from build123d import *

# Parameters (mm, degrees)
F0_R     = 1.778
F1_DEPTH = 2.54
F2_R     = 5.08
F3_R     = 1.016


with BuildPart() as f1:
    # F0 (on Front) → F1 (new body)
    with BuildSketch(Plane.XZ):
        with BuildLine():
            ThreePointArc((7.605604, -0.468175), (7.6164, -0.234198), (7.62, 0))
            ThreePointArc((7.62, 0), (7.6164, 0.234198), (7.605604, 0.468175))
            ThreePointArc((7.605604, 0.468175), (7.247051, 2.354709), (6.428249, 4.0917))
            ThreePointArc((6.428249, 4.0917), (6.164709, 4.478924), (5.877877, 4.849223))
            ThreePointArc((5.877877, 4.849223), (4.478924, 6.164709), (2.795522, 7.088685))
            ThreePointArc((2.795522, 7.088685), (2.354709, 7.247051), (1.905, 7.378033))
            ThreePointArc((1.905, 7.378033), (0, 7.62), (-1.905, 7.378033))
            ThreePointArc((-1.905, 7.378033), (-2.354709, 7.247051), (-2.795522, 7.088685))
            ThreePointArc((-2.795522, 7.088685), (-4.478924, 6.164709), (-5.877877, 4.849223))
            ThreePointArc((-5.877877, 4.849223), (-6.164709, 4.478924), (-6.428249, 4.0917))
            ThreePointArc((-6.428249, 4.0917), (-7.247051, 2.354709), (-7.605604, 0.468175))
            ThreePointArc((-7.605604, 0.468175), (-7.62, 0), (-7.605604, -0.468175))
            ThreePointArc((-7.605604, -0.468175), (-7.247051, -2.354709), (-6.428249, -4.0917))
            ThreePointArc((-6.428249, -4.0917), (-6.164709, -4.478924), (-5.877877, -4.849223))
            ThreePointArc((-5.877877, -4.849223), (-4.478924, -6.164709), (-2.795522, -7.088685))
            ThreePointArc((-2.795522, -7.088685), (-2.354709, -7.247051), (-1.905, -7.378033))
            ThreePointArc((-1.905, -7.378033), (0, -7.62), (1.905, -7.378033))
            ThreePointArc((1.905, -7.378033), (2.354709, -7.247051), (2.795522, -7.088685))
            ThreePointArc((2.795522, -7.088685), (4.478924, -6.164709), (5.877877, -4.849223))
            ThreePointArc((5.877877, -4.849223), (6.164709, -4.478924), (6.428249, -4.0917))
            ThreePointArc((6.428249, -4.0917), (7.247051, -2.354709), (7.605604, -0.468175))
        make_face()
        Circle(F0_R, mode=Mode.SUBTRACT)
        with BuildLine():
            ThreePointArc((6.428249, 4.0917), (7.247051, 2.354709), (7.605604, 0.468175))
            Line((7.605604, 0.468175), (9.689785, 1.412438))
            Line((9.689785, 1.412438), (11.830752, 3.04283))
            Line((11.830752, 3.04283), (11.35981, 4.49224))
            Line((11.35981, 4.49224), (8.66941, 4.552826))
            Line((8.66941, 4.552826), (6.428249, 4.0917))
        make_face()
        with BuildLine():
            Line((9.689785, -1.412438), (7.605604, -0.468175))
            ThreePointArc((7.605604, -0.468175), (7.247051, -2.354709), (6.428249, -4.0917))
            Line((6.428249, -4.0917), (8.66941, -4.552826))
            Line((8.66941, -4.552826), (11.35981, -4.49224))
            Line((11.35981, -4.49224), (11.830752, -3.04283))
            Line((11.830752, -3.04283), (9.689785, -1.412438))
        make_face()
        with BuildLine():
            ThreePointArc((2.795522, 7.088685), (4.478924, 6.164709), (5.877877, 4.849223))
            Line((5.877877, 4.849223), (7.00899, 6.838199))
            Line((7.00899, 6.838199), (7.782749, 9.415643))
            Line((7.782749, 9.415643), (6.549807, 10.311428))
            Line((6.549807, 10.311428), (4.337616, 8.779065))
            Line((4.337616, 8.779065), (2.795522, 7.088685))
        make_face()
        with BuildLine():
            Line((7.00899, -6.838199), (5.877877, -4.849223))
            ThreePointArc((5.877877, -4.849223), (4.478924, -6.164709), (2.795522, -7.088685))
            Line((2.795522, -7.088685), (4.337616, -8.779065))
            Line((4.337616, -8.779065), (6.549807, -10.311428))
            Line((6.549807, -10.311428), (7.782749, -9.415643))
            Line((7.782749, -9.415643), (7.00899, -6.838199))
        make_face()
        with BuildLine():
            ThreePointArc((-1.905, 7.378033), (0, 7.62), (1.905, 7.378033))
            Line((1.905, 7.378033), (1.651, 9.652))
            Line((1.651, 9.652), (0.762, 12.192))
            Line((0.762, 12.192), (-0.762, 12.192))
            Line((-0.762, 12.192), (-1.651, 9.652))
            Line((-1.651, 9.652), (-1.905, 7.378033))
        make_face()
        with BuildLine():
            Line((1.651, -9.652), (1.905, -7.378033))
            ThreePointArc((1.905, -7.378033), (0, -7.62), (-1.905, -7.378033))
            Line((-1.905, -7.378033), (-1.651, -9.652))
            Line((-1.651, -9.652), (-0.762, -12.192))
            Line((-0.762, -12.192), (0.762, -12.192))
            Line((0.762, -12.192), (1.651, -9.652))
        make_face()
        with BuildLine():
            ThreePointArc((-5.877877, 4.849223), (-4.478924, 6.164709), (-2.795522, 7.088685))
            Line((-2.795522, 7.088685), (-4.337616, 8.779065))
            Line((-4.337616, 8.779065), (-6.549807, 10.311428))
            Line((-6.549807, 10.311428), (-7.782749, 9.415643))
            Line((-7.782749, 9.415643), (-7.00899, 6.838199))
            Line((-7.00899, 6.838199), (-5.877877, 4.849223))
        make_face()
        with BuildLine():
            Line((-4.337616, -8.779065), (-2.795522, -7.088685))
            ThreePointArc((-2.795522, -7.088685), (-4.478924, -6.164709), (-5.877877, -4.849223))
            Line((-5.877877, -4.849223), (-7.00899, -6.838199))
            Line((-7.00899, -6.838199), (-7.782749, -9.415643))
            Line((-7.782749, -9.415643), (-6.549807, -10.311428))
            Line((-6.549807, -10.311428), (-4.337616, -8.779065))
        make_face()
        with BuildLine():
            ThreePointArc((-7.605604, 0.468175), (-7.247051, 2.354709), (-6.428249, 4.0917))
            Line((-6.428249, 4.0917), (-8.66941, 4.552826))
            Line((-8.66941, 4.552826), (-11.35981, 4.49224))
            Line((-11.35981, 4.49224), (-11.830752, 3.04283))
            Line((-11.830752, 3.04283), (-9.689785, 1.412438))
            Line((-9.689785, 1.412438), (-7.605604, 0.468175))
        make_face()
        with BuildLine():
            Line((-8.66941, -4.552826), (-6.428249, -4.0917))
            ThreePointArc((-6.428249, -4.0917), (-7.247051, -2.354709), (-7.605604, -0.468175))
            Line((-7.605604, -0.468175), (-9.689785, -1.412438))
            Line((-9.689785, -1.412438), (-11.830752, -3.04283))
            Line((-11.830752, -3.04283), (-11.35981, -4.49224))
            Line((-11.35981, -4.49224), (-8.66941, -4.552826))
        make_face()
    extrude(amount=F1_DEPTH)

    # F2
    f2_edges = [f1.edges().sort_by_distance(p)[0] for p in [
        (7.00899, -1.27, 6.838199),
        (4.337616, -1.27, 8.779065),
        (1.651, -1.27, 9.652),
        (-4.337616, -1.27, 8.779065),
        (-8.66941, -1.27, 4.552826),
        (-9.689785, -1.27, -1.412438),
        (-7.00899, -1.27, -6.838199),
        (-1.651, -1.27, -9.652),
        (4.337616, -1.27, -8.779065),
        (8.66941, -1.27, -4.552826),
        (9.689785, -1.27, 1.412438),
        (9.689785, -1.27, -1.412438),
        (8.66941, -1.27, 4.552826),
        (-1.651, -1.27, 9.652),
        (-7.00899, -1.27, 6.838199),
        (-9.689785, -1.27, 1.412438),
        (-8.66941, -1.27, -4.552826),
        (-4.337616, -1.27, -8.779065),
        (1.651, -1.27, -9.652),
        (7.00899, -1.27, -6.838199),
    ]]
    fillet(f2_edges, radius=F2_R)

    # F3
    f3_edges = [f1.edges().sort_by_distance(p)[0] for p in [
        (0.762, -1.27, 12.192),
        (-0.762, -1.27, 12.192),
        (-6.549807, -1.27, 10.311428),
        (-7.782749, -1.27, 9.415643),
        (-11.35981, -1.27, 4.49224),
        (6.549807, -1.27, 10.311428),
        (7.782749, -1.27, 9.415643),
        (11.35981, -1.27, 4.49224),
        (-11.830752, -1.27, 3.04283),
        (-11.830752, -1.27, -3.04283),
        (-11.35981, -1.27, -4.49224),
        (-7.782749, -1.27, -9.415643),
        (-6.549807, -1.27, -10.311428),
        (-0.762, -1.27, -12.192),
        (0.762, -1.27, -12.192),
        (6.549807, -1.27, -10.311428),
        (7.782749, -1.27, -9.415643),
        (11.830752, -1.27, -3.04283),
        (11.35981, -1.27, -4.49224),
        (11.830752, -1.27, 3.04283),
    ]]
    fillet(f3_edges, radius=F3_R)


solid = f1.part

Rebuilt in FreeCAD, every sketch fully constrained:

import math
import FreeCAD as App
import Part
import Sketcher

V = App.Vector
Q = App.Units.Quantity


def edges_at(feature, points):
    """Names of the edges that pass closest to the given points."""
    edges = feature.Shape.Edges
    near = lambda p: min(range(len(edges)), key=lambda i: edges[i].distToShape(Part.Vertex(*p))[0])
    return sorted({f"Edge{near(p) + 1}" for p in points})

doc = App.newDocument("Part")
body = doc.addObject("PartDesign::Body", "Body")

# Sketch on XZ plane
sketch1 = body.newObject("Sketcher::SketchObject", "Sketch")
sketch1.AttachmentSupport = (doc.getObject("XZ_Plane"), [""])
sketch1.MapMode = "FlatFace"
sketch1.addGeometry([
    Part.ArcOfCircle(Part.Circle(V(-0.000327, 0.00001, 0), V(0, 0, 1), 7.620327), math.radians(-3.522412), math.radians(-0.000075)),  # 0
    Part.ArcOfCircle(Part.Circle(V(-0.000327, -0.00001, 0), V(0, 0, 1), 7.620327), math.radians(0.000075), math.radians(3.522412)),  # 1
    Part.LineSegment(V(7.605604, 0.468175, 0), V(9.689785, 1.412438, 0)),  # 2
    Part.LineSegment(V(9.689785, 1.412438, 0), V(11.830752, 3.04283, 0)),  # 3
    Part.LineSegment(V(11.830752, 3.04283, 0), V(11.35981, 4.49224, 0)),  # 4
    Part.LineSegment(V(11.35981, 4.49224, 0), V(8.66941, 4.552826, 0)),  # 5
    Part.LineSegment(V(8.66941, 4.552826, 0), V(6.428249, 4.0917, 0)),  # 6
    Part.ArcOfCircle(Part.Circle(V(-0.000021, -0.00001, 0), V(0, 0, 1), 7.620023), math.radians(32.477491), math.radians(39.522442)),  # 7
    Part.LineSegment(V(5.877877, 4.849223, 0), V(7.00899, 6.838199, 0)),  # 8
    Part.LineSegment(V(7.00899, 6.838199, 0), V(7.782749, 9.415643, 0)),  # 9
    Part.LineSegment(V(7.782749, 9.415643, 0), V(6.549807, 10.311428, 0)),  # 10
    Part.LineSegment(V(6.549807, 10.311428, 0), V(4.337616, 8.779065, 0)),  # 11
    Part.LineSegment(V(4.337616, 8.779065, 0), V(2.795522, 7.088685, 0)),  # 12
    Part.ArcOfCircle(Part.Circle(V(0.000061, 0.000183, 0), V(0, 0, 1), 7.619807), math.radians(68.47743), math.radians(75.522586)),  # 13
    Part.LineSegment(V(1.905, 7.378033, 0), V(1.651, 9.652, 0)),  # 14
    Part.LineSegment(V(1.651, 9.652, 0), V(0.762, 12.192, 0)),  # 15
    Part.LineSegment(V(0.762, 12.192, 0), V(-0.762, 12.192, 0)),  # 16
    Part.LineSegment(V(-0.762, 12.192, 0), V(-1.651, 9.652, 0)),  # 17
    Part.LineSegment(V(-1.651, 9.652, 0), V(-1.905, 7.378033, 0)),  # 18
    Part.ArcOfCircle(Part.Circle(V(-0.000061, 0.000183, 0), V(0, 0, 1), 7.619807), math.radians(104.477414), math.radians(111.52257)),  # 19
    Part.LineSegment(V(-2.795522, 7.088685, 0), V(-4.337616, 8.779065, 0)),  # 20
    Part.LineSegment(V(-4.337616, 8.779065, 0), V(-6.549807, 10.311428, 0)),  # 21
    Part.LineSegment(V(-6.549807, 10.311428, 0), V(-7.782749, 9.415643, 0)),  # 22
    Part.LineSegment(V(-7.782749, 9.415643, 0), V(-7.00899, 6.838199, 0)),  # 23
    Part.LineSegment(V(-7.00899, 6.838199, 0), V(-5.877877, 4.849223, 0)),  # 24
    Part.ArcOfCircle(Part.Circle(V(0.000021, -0.00001, 0), V(0, 0, 1), 7.620023), math.radians(140.477558), math.radians(147.522509)),  # 25
    Part.LineSegment(V(-6.428249, 4.0917, 0), V(-8.66941, 4.552826, 0)),  # 26
    Part.LineSegment(V(-8.66941, 4.552826, 0), V(-11.35981, 4.49224, 0)),  # 27
    Part.LineSegment(V(-11.35981, 4.49224, 0), V(-11.830752, 3.04283, 0)),  # 28
    Part.LineSegment(V(-11.830752, 3.04283, 0), V(-9.689785, 1.412438, 0)),  # 29
    Part.LineSegment(V(-9.689785, 1.412438, 0), V(-7.605604, 0.468175, 0)),  # 30
    Part.ArcOfCircle(Part.Circle(V(0.000001, 0, 0), V(0, 0, 1), 7.620001), math.radians(176.477513), math.radians(183.522487)),  # 31
    Part.LineSegment(V(-7.605604, -0.468175, 0), V(-9.689785, -1.412438, 0)),  # 32
    Part.LineSegment(V(-9.689785, -1.412438, 0), V(-11.830752, -3.04283, 0)),  # 33
    Part.LineSegment(V(-11.830752, -3.04283, 0), V(-11.35981, -4.49224, 0)),  # 34
    Part.LineSegment(V(-11.35981, -4.49224, 0), V(-8.66941, -4.552826, 0)),  # 35
    Part.LineSegment(V(-8.66941, -4.552826, 0), V(-6.428249, -4.0917, 0)),  # 36
    Part.ArcOfCircle(Part.Circle(V(0.000021, 0.00001, 0), V(0, 0, 1), 7.620023), math.radians(-147.522509), math.radians(-140.477558)),  # 37
    Part.LineSegment(V(-5.877877, -4.849223, 0), V(-7.00899, -6.838199, 0)),  # 38
    Part.LineSegment(V(-7.00899, -6.838199, 0), V(-7.782749, -9.415643, 0)),  # 39
    Part.LineSegment(V(-7.782749, -9.415643, 0), V(-6.549807, -10.311428, 0)),  # 40
    Part.LineSegment(V(-6.549807, -10.311428, 0), V(-4.337616, -8.779065, 0)),  # 41
    Part.LineSegment(V(-4.337616, -8.779065, 0), V(-2.795522, -7.088685, 0)),  # 42
    Part.ArcOfCircle(Part.Circle(V(-0.000061, -0.000183, 0), V(0, 0, 1), 7.619807), math.radians(-111.52257), math.radians(-104.477414)),  # 43
    Part.LineSegment(V(-1.905, -7.378033, 0), V(-1.651, -9.652, 0)),  # 44
    Part.LineSegment(V(-1.651, -9.652, 0), V(-0.762, -12.192, 0)),  # 45
    Part.LineSegment(V(-0.762, -12.192, 0), V(0.762, -12.192, 0)),  # 46
    Part.LineSegment(V(0.762, -12.192, 0), V(1.651, -9.652, 0)),  # 47
    Part.LineSegment(V(1.651, -9.652, 0), V(1.905, -7.378033, 0)),  # 48
    Part.ArcOfCircle(Part.Circle(V(0.000061, -0.000183, 0), V(0, 0, 1), 7.619807), math.radians(-75.522586), math.radians(-68.47743)),  # 49
    Part.LineSegment(V(2.795522, -7.088685, 0), V(4.337616, -8.779065, 0)),  # 50
    Part.LineSegment(V(4.337616, -8.779065, 0), V(6.549807, -10.311428, 0)),  # 51
    Part.LineSegment(V(6.549807, -10.311428, 0), V(7.782749, -9.415643, 0)),  # 52
    Part.LineSegment(V(7.782749, -9.415643, 0), V(7.00899, -6.838199, 0)),  # 53
    Part.LineSegment(V(7.00899, -6.838199, 0), V(5.877877, -4.849223, 0)),  # 54
    Part.ArcOfCircle(Part.Circle(V(-0.000021, 0.00001, 0), V(0, 0, 1), 7.620023), math.radians(-39.522442), math.radians(-32.477491)),  # 55
    Part.LineSegment(V(6.428249, -4.0917, 0), V(8.66941, -4.552826, 0)),  # 56
    Part.LineSegment(V(8.66941, -4.552826, 0), V(11.35981, -4.49224, 0)),  # 57
    Part.LineSegment(V(11.35981, -4.49224, 0), V(11.830752, -3.04283, 0)),  # 58
    Part.LineSegment(V(11.830752, -3.04283, 0), V(9.689785, -1.412438, 0)),  # 59
    Part.LineSegment(V(9.689785, -1.412438, 0), V(7.605604, -0.468175, 0)),  # 60
    Part.Circle(V(0, 0, 0), V(0, 0, 1), 1.778),  # 61
], False)
sketch1.addConstraint([
    Sketcher.Constraint("Coincident", 0, 2, 1, 1),
    Sketcher.Constraint("Coincident", 1, 2, 2, 1),
    Sketcher.Constraint("Coincident", 2, 2, 3, 1),
    Sketcher.Constraint("Coincident", 3, 2, 4, 1),
    Sketcher.Constraint("Coincident", 4, 2, 5, 1),
    Sketcher.Constraint("Coincident", 5, 2, 6, 1),
    Sketcher.Constraint("Coincident", 6, 2, 7, 1),
    Sketcher.Constraint("Coincident", 7, 2, 8, 1),
    Sketcher.Constraint("Coincident", 8, 2, 9, 1),
    Sketcher.Constraint("Coincident", 9, 2, 10, 1),
    Sketcher.Constraint("Coincident", 10, 2, 11, 1),
    Sketcher.Constraint("Coincident", 11, 2, 12, 1),
    Sketcher.Constraint("Coincident", 12, 2, 13, 1),
    Sketcher.Constraint("Coincident", 13, 2, 14, 1),
    Sketcher.Constraint("Coincident", 14, 2, 15, 1),
    Sketcher.Constraint("Coincident", 15, 2, 16, 1),
    Sketcher.Constraint("Coincident", 16, 2, 17, 1),
    Sketcher.Constraint("Coincident", 17, 2, 18, 1),
    Sketcher.Constraint("Coincident", 18, 2, 19, 1),
    Sketcher.Constraint("Coincident", 19, 2, 20, 1),
    Sketcher.Constraint("Coincident", 20, 2, 21, 1),
    Sketcher.Constraint("Coincident", 21, 2, 22, 1),
    Sketcher.Constraint("Coincident", 22, 2, 23, 1),
    Sketcher.Constraint("Coincident", 23, 2, 24, 1),
    Sketcher.Constraint("Coincident", 24, 2, 25, 1),
    Sketcher.Constraint("Coincident", 25, 2, 26, 1),
    Sketcher.Constraint("Coincident", 26, 2, 27, 1),
    Sketcher.Constraint("Coincident", 27, 2, 28, 1),
    Sketcher.Constraint("Coincident", 28, 2, 29, 1),
    Sketcher.Constraint("Coincident", 29, 2, 30, 1),
    Sketcher.Constraint("Coincident", 30, 2, 31, 1),
    Sketcher.Constraint("Coincident", 31, 2, 32, 1),
    Sketcher.Constraint("Coincident", 32, 2, 33, 1),
    Sketcher.Constraint("Coincident", 33, 2, 34, 1),
    Sketcher.Constraint("Coincident", 34, 2, 35, 1),
    Sketcher.Constraint("Coincident", 35, 2, 36, 1),
    Sketcher.Constraint("Coincident", 36, 2, 37, 1),
    Sketcher.Constraint("Coincident", 37, 2, 38, 1),
    Sketcher.Constraint("Coincident", 38, 2, 39, 1),
    Sketcher.Constraint("Coincident", 39, 2, 40, 1),
    Sketcher.Constraint("Coincident", 40, 2, 41, 1),
    Sketcher.Constraint("Coincident", 41, 2, 42, 1),
    Sketcher.Constraint("Coincident", 42, 2, 43, 1),
    Sketcher.Constraint("Coincident", 43, 2, 44, 1),
    Sketcher.Constraint("Coincident", 44, 2, 45, 1),
    Sketcher.Constraint("Coincident", 45, 2, 46, 1),
    Sketcher.Constraint("Coincident", 46, 2, 47, 1),
    Sketcher.Constraint("Coincident", 47, 2, 48, 1),
    Sketcher.Constraint("Coincident", 48, 2, 49, 1),
    Sketcher.Constraint("Coincident", 49, 2, 50, 1),
    Sketcher.Constraint("Coincident", 50, 2, 51, 1),
    Sketcher.Constraint("Coincident", 51, 2, 52, 1),
    Sketcher.Constraint("Coincident", 52, 2, 53, 1),
    Sketcher.Constraint("Coincident", 53, 2, 54, 1),
    Sketcher.Constraint("Coincident", 54, 2, 55, 1),
    Sketcher.Constraint("Coincident", 55, 2, 56, 1),
    Sketcher.Constraint("Coincident", 56, 2, 57, 1),
    Sketcher.Constraint("Coincident", 57, 2, 58, 1),
    Sketcher.Constraint("Coincident", 58, 2, 59, 1),
    Sketcher.Constraint("Coincident", 59, 2, 60, 1),
    Sketcher.Constraint("Coincident", 60, 2, 0, 1),
    Sketcher.Constraint("Horizontal", 16),
    Sketcher.Constraint("Horizontal", 46),
    Sketcher.Constraint("Coincident", 31, 3, -1, 1),
    Sketcher.Constraint("Coincident", 61, 3, -1, 1),
    Sketcher.Constraint("Equal", 0, 1),
    Sketcher.Constraint("Equal", 13, 19),
    Sketcher.Constraint("Equal", 7, 25),
    Sketcher.Constraint("Equal", 25, 37),
    Sketcher.Constraint("Equal", 19, 43),
    Sketcher.Constraint("Equal", 43, 49),
    Sketcher.Constraint("Equal", 37, 55),
    Sketcher.Constraint("Symmetric", 7, 3, 37, 3, -1, 1),
    Sketcher.Constraint("Symmetric", 13, 3, 43, 3, -1, 1),
    Sketcher.Constraint("Symmetric", 19, 3, 49, 3, -1, 1),
    Sketcher.Constraint("Symmetric", 25, 3, 55, 3, -1, 1),
    Sketcher.Constraint("Symmetric", 1, 2, 31, 2, -1, 1),
    Sketcher.Constraint("Symmetric", 2, 2, 32, 2, -1, 1),
    Sketcher.Constraint("Symmetric", 3, 2, 33, 2, -1, 1),
    Sketcher.Constraint("Symmetric", 4, 2, 34, 2, -1, 1),
    Sketcher.Constraint("Symmetric", 5, 2, 35, 2, -1, 1),
    Sketcher.Constraint("Symmetric", 8, 2, 38, 2, -1, 1),
    Sketcher.Constraint("Symmetric", 9, 2, 39, 2, -1, 1),
    Sketcher.Constraint("Symmetric", 10, 2, 40, 2, -1, 1),
    Sketcher.Constraint("Symmetric", 11, 2, 41, 2, -1, 1),
    Sketcher.Constraint("Symmetric", 14, 2, 44, 2, -1, 1),
    Sketcher.Constraint("Symmetric", 15, 2, 45, 2, -1, 1),
    Sketcher.Constraint("Symmetric", 17, 2, 47, 2, -1, 1),
    Sketcher.Constraint("Symmetric", 20, 2, 50, 2, -1, 1),
    Sketcher.Constraint("Symmetric", 21, 2, 51, 2, -1, 1),
    Sketcher.Constraint("Symmetric", 22, 2, 52, 2, -1, 1),
    Sketcher.Constraint("Symmetric", 23, 2, 53, 2, -1, 1),
    Sketcher.Constraint("Symmetric", 26, 2, 56, 2, -1, 1),
    Sketcher.Constraint("Symmetric", 27, 2, 57, 2, -1, 1),
    Sketcher.Constraint("Symmetric", 28, 2, 58, 2, -1, 1),
    Sketcher.Constraint("Symmetric", 29, 2, 59, 2, -1, 1),
    Sketcher.Constraint("Symmetric", 30, 2, 60, 2, -1, 1),
    Sketcher.Constraint("Symmetric", 13, 3, 19, 3, -2),
    Sketcher.Constraint("Symmetric", 7, 3, 25, 3, -2),
    Sketcher.Constraint("Symmetric", 14, 2, 17, 2, -2),
    Sketcher.Constraint("Symmetric", 11, 2, 20, 2, -2),
    Sketcher.Constraint("Symmetric", 10, 2, 21, 2, -2),
    Sketcher.Constraint("Symmetric", 9, 2, 22, 2, -2),
    Sketcher.Constraint("Symmetric", 8, 2, 23, 2, -2),
    Sketcher.Constraint("Symmetric", 5, 2, 26, 2, -2),
    Sketcher.Constraint("Symmetric", 4, 2, 27, 2, -2),
    Sketcher.Constraint("Symmetric", 3, 2, 28, 2, -2),
    Sketcher.Constraint("Symmetric", 2, 2, 29, 2, -2),
    Sketcher.Constraint("PointOnObject", 0, 2, -1),
    Sketcher.Constraint("Parallel", 6, 36),
    Sketcher.Constraint("Parallel", 8, 38),
    Sketcher.Constraint("Parallel", 12, 42),
    Sketcher.Constraint("Parallel", 14, 44),
    Sketcher.Constraint("Parallel", 17, 47),
    Sketcher.Constraint("Parallel", 18, 48),
    Sketcher.Constraint("Parallel", 20, 50),
    Sketcher.Constraint("Parallel", 24, 54),
    Sketcher.Constraint("Parallel", 26, 56),
    Sketcher.Constraint("Horizontal", 1, 3, 7, 3),
    Sketcher.Constraint("Horizontal", 13, 2, 18, 2),
    Sketcher.Constraint("Horizontal", 12, 2, 19, 2),
    Sketcher.Constraint("Horizontal", 7, 2, 24, 2),
    Sketcher.Constraint("Horizontal", 6, 2, 25, 2),
    Sketcher.Constraint("Horizontal", 1, 2, 30, 2),
    Sketcher.Constraint("Vertical", 16, 2, 45, 2),
    Sketcher.Constraint("Equal", 3, 5),
    Sketcher.Constraint("Equal", 2, 6),
    Sketcher.Constraint("Equal", 6, 8),
    Sketcher.Constraint("Equal", 5, 9),
    Sketcher.Constraint("Equal", 4, 10),
    Sketcher.Constraint("Equal", 9, 11),
    Sketcher.Constraint("Equal", 8, 12),
    Sketcher.Constraint("Equal", 12, 14),
    Sketcher.Constraint("Equal", 11, 15),
    Sketcher.Constraint("Radius", 31, Q("0.3 in")),
    Sketcher.Constraint("Diameter", 61, Q("0.14 in")),
    Sketcher.Constraint("Angle", 4, Q("108.000005 deg")),
    Sketcher.Constraint("Angle", 10, Q("143.999994 deg")),
    Sketcher.Constraint("DistanceX", 16, 2, 16, 1, Q("0.06 in")),
    Sketcher.Constraint("DistanceX", -1, 1, 0, 2, Q("0.3 in")),
    Sketcher.Constraint("Distance", 4, Q("0.06 in")),
    Sketcher.Constraint("DistanceY", -1, 1, 14, 2, Q("0.38 in")),
    Sketcher.Constraint("DistanceY", -1, 1, 15, 2, Q("0.48 in")),
    Sketcher.Constraint("DistanceX", -1, 1, 13, 2, Q("0.075 in")),
    Sketcher.Constraint("DistanceX", -1, 1, 14, 2, Q("0.065 in")),
    Sketcher.Constraint("Radius", 0, Q("7.620327 mm")),
    Sketcher.Constraint("Radius", 7, Q("7.620023 mm")),
    Sketcher.Constraint("Radius", 13, Q("7.619807 mm")),
    Sketcher.Constraint("DistanceY", -1, 1, 6, 2, Q("4.0917 mm")),
    Sketcher.Constraint("DistanceY", -1, 1, 8, 2, Q("6.838199 mm")),
    Sketcher.Constraint("Distance", 2, Q("2.288109 mm")),
    Sketcher.Constraint("DistanceY", -1, 1, 2, 2, Q("1.412438 mm")),
    Sketcher.Constraint("DistanceY", -1, 1, 3, 2, Q("3.04283 mm")),
    Sketcher.Constraint("DistanceX", -1, 1, 4, 2, Q("11.35981 mm")),
    Sketcher.Constraint("DistanceX", -1, 1, 5, 2, Q("8.66941 mm")),
    Sketcher.Constraint("DistanceX", -1, 1, 8, 2, Q("7.00899 mm")),
    Sketcher.Constraint("DistanceX", -1, 1, 9, 2, Q("7.782749 mm")),
    Sketcher.Constraint("DistanceX", 19, 2, -1, 1, Q("2.795522 mm")),
    Sketcher.Constraint("DistanceY", -1, 1, 13, 3, Q("0.000183 mm")),
])
pad1 = body.newObject("PartDesign::Pad", "Pad")
pad1.Profile = sketch1
pad1.Length = Q("0.1 in")
doc.recompute()

fillet = body.newObject("PartDesign::Fillet", "Fillet")
fillet.Base = (pad1, edges_at(pad1, [
    (7.009, -1.27, 6.838),
    (4.338, -1.27, 8.779),
    (1.651, -1.27, 9.652),
    (-4.338, -1.27, 8.779),
    (-8.669, -1.27, 4.553),
    (-9.69, -1.27, -1.412),
    (-7.009, -1.27, -6.838),
    (-1.651, -1.27, -9.652),
    (4.338, -1.27, -8.779),
    (8.669, -1.27, -4.553),
    (9.69, -1.27, 1.412),
    (9.69, -1.27, -1.412),
    (8.669, -1.27, 4.553),
    (-1.651, -1.27, 9.652),
    (-7.009, -1.27, 6.838),
    (-9.69, -1.27, 1.412),
    (-8.669, -1.27, -4.553),
    (-4.338, -1.27, -8.779),
    (1.651, -1.27, -9.652),
    (7.009, -1.27, -6.838),
]))
fillet.Radius = Q("0.2 in")
doc.recompute()

fillet2 = body.newObject("PartDesign::Fillet", "Fillet001")
fillet2.Base = (fillet, edges_at(fillet, [
    (0.762, -1.27, 12.192),
    (-0.762, -1.27, 12.192),
    (-6.55, -1.27, 10.311),
    (-7.783, -1.27, 9.416),
    (-11.36, -1.27, 4.492),
    (6.55, -1.27, 10.311),
    (7.783, -1.27, 9.416),
    (11.36, -1.27, 4.492),
    (-11.831, -1.27, 3.043),
    (-11.831, -1.27, -3.043),
    (-11.36, -1.27, -4.492),
    (-7.783, -1.27, -9.416),
    (-6.55, -1.27, -10.311),
    (-0.762, -1.27, -12.192),
    (0.762, -1.27, -12.192),
    (6.55, -1.27, -10.311),
    (7.783, -1.27, -9.416),
    (11.831, -1.27, -3.043),
    (11.36, -1.27, -4.492),
    (11.831, -1.27, 3.043),
]))
fillet2.Radius = Q("0.04 in")

doc.recompute()
